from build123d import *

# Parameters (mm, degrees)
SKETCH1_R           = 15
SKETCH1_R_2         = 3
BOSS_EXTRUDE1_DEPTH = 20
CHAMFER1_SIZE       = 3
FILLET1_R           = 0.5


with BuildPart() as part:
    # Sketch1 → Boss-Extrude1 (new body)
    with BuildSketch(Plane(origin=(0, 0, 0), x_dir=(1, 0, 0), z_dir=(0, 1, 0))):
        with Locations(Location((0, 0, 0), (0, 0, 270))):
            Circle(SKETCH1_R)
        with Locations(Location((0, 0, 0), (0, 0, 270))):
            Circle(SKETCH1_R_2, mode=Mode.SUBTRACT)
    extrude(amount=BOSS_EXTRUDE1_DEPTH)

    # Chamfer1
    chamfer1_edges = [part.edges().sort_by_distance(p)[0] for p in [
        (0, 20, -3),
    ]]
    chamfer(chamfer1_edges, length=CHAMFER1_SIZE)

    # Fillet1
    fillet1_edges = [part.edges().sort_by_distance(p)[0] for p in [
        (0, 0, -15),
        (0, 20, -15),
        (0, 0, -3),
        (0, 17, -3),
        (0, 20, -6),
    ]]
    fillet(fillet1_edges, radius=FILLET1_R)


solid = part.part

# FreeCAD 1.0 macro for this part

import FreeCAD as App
import Part
import Sketcher


def edges_at(feature, points):
    """Names of the edges that pass closest to the given points."""
    edges = feature.Shape.Edges
    near = lambda p: min(range(len(edges)), key=lambda i: edges[i].distToShape(Part.Vertex(*p))[0])
    return sorted({f"Edge{near(p) + 1}" for p in points})

doc = App.newDocument("Part")
params = doc.addObject("Spreadsheet::Sheet", "Params")
for row, (alias, value) in enumerate([
    ("sketch1_diameter", "30 mm"),
    ("sketch1_diameter2", "6 mm"),
    ("pad1_length", "20 mm"),
    ("chamfer_size", "3 mm"),
    ("fillet_radius", "0.5 mm"),
], start=1):
    params.set(f"A{row}", alias)
    params.set(f"B{row}", "=" + value)
    params.setAlias(f"B{row}", alias)

body = doc.addObject("PartDesign::Body", "Body")

# Sketch on XZ plane
sketch1 = body.newObject("Sketcher::SketchObject", "Sketch")
sketch1.AttachmentSupport = (doc.getObject("XZ_Plane"), [""])
sketch1.MapMode = "FlatFace"
sketch1.addGeometry(Part.Circle(App.Vector(0, 0, 0), App.Vector(0, 0, 1), 15), False)
sketch1.addGeometry(Part.Circle(App.Vector(0, 0, 0), App.Vector(0, 0, 1), 3), False)
sketch1.addConstraint(Sketcher.Constraint("Coincident", 0, 3, -1, 1))
sketch1.addConstraint(Sketcher.Constraint("Coincident", 1, 3, -1, 1))
sketch1.addConstraint(Sketcher.Constraint("Diameter", 0, 30.0))
sketch1.addConstraint(Sketcher.Constraint("Diameter", 1, 6.0))
sketch1.setExpression("Constraints[2]", "Params.sketch1_diameter")
sketch1.setExpression("Constraints[3]", "Params.sketch1_diameter2")
pad1 = body.newObject("PartDesign::Pad", "Pad")
pad1.Profile = sketch1
pad1.setExpression("Length", "Params.pad1_length")
pad1.Reversed = True
doc.recompute()

chamfer = body.newObject("PartDesign::Chamfer", "Chamfer")
chamfer.Base = (pad1, edges_at(pad1, [(0, 20, -3)]))
chamfer.setExpression("Size", "Params.chamfer_size")
doc.recompute()

fillet = body.newObject("PartDesign::Fillet", "Fillet")
fillet.Base = (chamfer, edges_at(chamfer, [
    (0, 0, -15),
    (0, 20, -15),
    (0, 0, -3),
    (0, 17, -3),
    (0, 20, -6),
]))
fillet.setExpression("Radius", "Params.fillet_radius")

doc.recompute()
